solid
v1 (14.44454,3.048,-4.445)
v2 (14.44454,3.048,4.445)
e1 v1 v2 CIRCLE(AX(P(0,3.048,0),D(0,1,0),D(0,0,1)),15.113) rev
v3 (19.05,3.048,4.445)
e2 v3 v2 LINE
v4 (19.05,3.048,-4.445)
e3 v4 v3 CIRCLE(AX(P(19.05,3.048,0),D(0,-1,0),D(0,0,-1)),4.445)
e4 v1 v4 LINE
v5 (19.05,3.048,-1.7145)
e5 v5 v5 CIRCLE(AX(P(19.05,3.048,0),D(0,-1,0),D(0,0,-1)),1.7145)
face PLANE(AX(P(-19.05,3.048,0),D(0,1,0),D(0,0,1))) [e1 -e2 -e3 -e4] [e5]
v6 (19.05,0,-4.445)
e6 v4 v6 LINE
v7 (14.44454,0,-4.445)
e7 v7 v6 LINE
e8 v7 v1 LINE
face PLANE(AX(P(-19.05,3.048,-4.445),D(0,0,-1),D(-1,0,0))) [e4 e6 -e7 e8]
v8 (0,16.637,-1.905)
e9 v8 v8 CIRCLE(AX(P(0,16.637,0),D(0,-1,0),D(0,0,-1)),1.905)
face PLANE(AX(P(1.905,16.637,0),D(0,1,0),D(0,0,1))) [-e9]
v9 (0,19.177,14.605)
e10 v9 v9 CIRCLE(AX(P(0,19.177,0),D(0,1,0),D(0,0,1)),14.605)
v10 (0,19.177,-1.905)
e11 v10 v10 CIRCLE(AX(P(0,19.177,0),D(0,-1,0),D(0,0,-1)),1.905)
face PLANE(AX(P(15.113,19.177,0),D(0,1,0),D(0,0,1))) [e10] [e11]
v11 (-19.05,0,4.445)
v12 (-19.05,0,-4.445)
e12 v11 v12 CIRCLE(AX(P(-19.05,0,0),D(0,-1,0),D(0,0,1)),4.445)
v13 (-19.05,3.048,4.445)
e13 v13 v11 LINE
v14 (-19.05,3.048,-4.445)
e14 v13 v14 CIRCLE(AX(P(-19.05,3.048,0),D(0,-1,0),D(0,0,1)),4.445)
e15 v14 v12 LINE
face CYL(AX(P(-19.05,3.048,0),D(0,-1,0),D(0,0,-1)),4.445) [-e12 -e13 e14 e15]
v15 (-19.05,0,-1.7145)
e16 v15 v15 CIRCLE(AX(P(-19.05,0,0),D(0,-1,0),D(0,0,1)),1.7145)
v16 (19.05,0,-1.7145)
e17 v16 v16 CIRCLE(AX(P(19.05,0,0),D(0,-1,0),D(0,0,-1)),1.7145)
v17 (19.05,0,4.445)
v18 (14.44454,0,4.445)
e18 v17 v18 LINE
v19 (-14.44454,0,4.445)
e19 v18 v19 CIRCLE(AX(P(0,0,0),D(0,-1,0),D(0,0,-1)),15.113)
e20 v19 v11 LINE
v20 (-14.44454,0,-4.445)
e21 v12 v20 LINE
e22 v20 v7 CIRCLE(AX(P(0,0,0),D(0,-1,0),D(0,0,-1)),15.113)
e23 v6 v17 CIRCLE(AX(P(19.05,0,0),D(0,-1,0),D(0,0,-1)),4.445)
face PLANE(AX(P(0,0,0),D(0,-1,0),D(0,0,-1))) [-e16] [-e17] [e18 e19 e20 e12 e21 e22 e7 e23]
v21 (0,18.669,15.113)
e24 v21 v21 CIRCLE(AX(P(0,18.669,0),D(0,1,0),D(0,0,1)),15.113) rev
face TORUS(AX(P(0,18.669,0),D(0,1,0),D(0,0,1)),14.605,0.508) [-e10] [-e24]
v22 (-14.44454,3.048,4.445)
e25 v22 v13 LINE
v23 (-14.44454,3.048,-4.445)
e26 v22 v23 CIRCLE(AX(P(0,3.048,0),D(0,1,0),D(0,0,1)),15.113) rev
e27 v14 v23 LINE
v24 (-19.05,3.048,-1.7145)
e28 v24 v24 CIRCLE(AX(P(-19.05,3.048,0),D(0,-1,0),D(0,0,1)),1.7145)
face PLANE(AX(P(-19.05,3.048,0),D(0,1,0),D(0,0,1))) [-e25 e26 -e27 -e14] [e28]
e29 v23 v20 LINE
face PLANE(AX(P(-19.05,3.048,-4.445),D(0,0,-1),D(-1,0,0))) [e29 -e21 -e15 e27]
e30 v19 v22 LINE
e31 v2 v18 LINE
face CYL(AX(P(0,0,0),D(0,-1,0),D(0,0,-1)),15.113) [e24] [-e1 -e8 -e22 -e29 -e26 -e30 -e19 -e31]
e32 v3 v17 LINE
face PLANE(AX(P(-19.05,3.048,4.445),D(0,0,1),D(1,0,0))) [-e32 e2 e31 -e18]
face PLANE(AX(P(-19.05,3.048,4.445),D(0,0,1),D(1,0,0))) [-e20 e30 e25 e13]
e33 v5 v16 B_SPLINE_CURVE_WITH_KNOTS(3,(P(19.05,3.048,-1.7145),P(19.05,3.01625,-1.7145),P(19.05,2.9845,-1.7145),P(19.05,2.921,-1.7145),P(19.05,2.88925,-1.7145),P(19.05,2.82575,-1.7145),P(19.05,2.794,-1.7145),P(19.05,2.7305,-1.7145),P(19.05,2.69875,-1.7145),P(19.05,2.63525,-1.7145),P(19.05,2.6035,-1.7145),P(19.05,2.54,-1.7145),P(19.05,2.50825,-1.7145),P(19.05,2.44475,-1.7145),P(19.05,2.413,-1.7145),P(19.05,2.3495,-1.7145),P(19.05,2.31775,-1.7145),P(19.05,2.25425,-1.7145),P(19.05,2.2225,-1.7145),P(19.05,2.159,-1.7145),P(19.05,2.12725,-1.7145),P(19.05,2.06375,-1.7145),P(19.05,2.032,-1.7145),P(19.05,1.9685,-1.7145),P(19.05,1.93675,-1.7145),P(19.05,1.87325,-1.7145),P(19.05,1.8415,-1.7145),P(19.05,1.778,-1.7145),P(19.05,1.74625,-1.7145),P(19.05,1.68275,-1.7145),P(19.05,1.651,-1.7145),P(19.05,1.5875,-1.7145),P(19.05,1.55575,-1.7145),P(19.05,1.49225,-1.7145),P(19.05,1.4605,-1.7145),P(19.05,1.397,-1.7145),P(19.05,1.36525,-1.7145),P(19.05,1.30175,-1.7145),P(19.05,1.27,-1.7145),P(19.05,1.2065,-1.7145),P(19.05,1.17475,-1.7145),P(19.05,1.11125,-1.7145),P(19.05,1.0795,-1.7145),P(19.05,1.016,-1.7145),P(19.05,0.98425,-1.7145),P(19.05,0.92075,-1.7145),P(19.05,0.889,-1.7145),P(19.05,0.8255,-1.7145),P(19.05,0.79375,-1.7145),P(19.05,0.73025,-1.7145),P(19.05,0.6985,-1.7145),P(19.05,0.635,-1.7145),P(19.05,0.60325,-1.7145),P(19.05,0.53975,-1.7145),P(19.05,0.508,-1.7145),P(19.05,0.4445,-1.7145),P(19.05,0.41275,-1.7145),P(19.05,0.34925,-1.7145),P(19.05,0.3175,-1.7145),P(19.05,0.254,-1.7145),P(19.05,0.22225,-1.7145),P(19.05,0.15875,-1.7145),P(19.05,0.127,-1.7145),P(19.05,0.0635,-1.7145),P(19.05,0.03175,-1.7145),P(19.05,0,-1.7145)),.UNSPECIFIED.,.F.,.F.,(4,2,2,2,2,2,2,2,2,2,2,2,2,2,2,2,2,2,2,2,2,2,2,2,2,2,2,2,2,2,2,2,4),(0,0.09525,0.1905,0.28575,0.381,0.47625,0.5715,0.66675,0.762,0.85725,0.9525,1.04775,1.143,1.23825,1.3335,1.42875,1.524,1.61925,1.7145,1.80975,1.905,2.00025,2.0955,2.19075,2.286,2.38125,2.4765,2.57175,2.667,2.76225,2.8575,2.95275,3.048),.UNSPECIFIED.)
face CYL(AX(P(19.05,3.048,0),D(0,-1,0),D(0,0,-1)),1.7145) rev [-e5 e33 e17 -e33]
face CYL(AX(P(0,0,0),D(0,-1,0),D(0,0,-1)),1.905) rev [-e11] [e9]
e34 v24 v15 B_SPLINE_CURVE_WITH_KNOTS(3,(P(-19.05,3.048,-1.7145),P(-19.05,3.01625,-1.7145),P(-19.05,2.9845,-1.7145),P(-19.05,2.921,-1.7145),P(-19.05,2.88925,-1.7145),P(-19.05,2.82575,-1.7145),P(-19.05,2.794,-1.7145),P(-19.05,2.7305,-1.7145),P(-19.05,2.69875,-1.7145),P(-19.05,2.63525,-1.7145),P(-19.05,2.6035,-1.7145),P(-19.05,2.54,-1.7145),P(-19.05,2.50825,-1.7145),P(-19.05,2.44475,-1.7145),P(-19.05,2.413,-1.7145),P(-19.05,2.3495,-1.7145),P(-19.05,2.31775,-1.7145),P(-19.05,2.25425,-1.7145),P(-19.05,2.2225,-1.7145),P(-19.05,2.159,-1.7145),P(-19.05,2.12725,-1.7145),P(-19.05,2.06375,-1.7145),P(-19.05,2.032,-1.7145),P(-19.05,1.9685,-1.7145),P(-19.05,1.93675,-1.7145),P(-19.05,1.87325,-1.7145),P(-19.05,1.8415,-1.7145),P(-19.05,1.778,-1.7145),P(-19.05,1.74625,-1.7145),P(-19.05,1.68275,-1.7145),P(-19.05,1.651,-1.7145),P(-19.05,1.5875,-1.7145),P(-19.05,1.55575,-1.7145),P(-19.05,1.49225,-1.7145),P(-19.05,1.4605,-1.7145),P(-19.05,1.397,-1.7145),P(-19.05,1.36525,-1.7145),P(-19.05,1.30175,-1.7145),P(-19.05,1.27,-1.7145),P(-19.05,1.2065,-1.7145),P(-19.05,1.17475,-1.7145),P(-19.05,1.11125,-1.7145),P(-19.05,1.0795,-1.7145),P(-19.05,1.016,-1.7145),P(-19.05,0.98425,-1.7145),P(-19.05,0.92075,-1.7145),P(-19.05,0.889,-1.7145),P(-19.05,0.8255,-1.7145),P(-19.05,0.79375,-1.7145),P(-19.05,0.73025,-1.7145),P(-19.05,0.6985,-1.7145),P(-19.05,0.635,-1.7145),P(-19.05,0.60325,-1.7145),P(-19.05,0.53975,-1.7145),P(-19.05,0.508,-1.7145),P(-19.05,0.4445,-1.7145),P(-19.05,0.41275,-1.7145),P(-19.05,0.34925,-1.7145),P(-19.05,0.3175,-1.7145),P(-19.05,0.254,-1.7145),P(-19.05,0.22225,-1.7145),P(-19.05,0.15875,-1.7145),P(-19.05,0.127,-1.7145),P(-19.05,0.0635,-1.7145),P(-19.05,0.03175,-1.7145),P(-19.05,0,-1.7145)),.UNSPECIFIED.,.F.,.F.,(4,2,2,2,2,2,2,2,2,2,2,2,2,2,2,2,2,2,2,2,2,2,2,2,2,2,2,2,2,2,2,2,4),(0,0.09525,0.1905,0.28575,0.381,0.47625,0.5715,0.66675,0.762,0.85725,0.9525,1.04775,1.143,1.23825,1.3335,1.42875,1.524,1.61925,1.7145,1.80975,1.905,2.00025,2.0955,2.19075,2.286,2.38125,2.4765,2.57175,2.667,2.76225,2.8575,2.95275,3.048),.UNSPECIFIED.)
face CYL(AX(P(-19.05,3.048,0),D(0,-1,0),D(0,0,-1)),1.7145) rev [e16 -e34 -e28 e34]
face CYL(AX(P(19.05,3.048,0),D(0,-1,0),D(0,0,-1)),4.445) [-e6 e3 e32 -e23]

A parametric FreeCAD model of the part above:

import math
import FreeCAD as App
import Part
import Sketcher
from FreeCAD import Vector
Q = App.Units.Quantity


def edges_at(feature, points):
    """Names of the edges that pass closest to the given points."""
    edges = feature.Shape.Edges
    near = lambda p: min(range(len(edges)), key=lambda i: edges[i].distToShape(Part.Vertex(*p))[0])
    return sorted({f"Edge{near(p) + 1}" for p in points})

doc = App.newDocument("Part")
params = doc.addObject("Spreadsheet::Sheet", "Params")
for row, (alias, value) in enumerate([
    ("sketch1_height", "0.1 in"),
    ("sketch1_width", "0.52 in"),
    ("sketch1_width2", "0.595 in"),
    ("sketch1_height2", "0.755 in"),
    ("revolution_angle", "360 deg"),
    ("sketch2_diameter", "0.135 in"),
    ("sketch2_width", "1.5 in"),
    ("sketch2_radius", "0.175 in"),
    ("pad1_length", "0.12 in"),
    ("fillet_radius", "0.02 in"),
], start=1):
    params.set(f"A{row}", alias)
    params.set(f"B{row}", "=" + value)
    params.setAlias(f"B{row}", alias)

body = doc.addObject("PartDesign::Body", "Body")

# Sketch on XY plane
sketch1 = doc.addObject("Sketcher::SketchObject", "Sketch")
body.addObject(sketch1)
sketch1.AttachmentSupport = (doc.XY_Plane, [""])
sketch1.MapMode = "FlatFace"
sketch1.addGeometry(Part.LineSegment(Vector(0, 0, 0), Vector(15.1, 0, 0)), False)
sketch1.addGeometry(Part.LineSegment(Vector(15.1, 0, 0), Vector(15.1, 19.2, 0)), False)
sketch1.addGeometry(Part.LineSegment(Vector(15.1, 19.2, 0), Vector(1.9, 19.2, 0)), False)
sketch1.addGeometry(Part.LineSegment(Vector(1.9, 19.2, 0), Vector(1.9, 16.6, 0)), False)
sketch1.addGeometry(Part.LineSegment(Vector(1.9, 16.6, 0), Vector(0, 16.6, 0)), False)
sketch1.addGeometry(Part.LineSegment(Vector(0, 16.6, 0), Vector(0, 0, 0)), False)
sketch1.addConstraint(Sketcher.Constraint("Coincident", 0, 2, 1, 1))
sketch1.addConstraint(Sketcher.Constraint("Coincident", 1, 2, 2, 1))
sketch1.addConstraint(Sketcher.Constraint("Coincident", 2, 2, 3, 1))
sketch1.addConstraint(Sketcher.Constraint("Coincident", 3, 2, 4, 1))
sketch1.addConstraint(Sketcher.Constraint("Coincident", 4, 2, 5, 1))
sketch1.addConstraint(Sketcher.Constraint("Coincident", 5, 2, 0, 1))
sketch1.addConstraint(Sketcher.Constraint("Horizontal", 0))
sketch1.addConstraint(Sketcher.Constraint("Vertical", 1))
sketch1.addConstraint(Sketcher.Constraint("Horizontal", 2))
sketch1.addConstraint(Sketcher.Constraint("Vertical", 3))
sketch1.addConstraint(Sketcher.Constraint("Horizontal", 4))
sketch1.addConstraint(Sketcher.Constraint("Vertical", 5))
sketch1.addConstraint(Sketcher.Constraint("Coincident", 5, 2, -1, 1))
sketch1.addConstraint(Sketcher.Constraint("DistanceY", 3, 2, 3, 1, Q("0.1 in")))
sketch1.addConstraint(Sketcher.Constraint("DistanceX", 2, 2, 2, 1, Q("0.52 in")))
sketch1.addConstraint(Sketcher.Constraint("DistanceX", 0, 1, 0, 2, Q("0.595 in")))
sketch1.addConstraint(Sketcher.Constraint("DistanceY", 1, 1, 1, 2, Q("0.755 in")))
sketch1.setExpression("Constraints[13]", "Params.sketch1_height")
sketch1.setExpression("Constraints[14]", "Params.sketch1_width")
sketch1.setExpression("Constraints[15]", "Params.sketch1_width2")
sketch1.setExpression("Constraints[16]", "Params.sketch1_height2")
revolution = doc.addObject("PartDesign::Revolution", "Revolution")
body.addObject(revolution)
revolution.Profile = sketch1
revolution.ReferenceAxis = (sketch1, ["V_Axis"])
revolution.setExpression("Angle", "Params.revolution_angle")

# Sketch on XZ plane
sketch2 = doc.addObject("Sketcher::SketchObject", "Sketch001")
body.addObject(sketch2)
sketch2.AttachmentSupport = (doc.XZ_Plane, [""])
sketch2.MapMode = "FlatFace"
sketch2.addGeometry(Part.LineSegment(Vector(19.1, 4.4, 0), Vector(-19.1, 4.4, 0)), False)
sketch2.addGeometry(Part.ArcOfCircle(Part.Circle(Vector(-19.1, 0, 0), Vector(0, 0, 1), 4.4), math.radians(90), math.radians(270)), False)
sketch2.addGeometry(Part.LineSegment(Vector(-19.1, -4.4, 0), Vector(19.1, -4.4, 0)), False)
sketch2.addGeometry(Part.ArcOfCircle(Part.Circle(Vector(19.1, 0, 0), Vector(0, 0, 1), 4.4), math.radians(-90), math.radians(90)), False)
sketch2.addGeometry(Part.Circle(Vector(19.1, 0, 0), Vector(0, 0, 1), 1.7), False)
sketch2.addGeometry(Part.Circle(Vector(-19.1, 0, 0), Vector(0, 0, 1), 1.7), False)
sketch2.addConstraint(Sketcher.Constraint("Tangent", 0, 2, 1, 1))
sketch2.addConstraint(Sketcher.Constraint("Tangent", 1, 2, 2, 1))
sketch2.addConstraint(Sketcher.Constraint("Tangent", 2, 2, 3, 1))
sketch2.addConstraint(Sketcher.Constraint("Tangent", 3, 2, 0, 1))
sketch2.addConstraint(Sketcher.Constraint("Horizontal", 0))
sketch2.addConstraint(Sketcher.Constraint("Horizontal", 2))
sketch2.addConstraint(Sketcher.Constraint("Coincident", 4, 3, 3, 3))
sketch2.addConstraint(Sketcher.Constraint("Coincident", 5, 3, 1, 3))
sketch2.addConstraint(Sketcher.Constraint("Equal", 4, 5))
sketch2.addConstraint(Sketcher.Constraint("Symmetric", 1, 3, 3, 3, -1, 1))
sketch2.addConstraint(Sketcher.Constraint("Diameter", 4, Q("0.135 in")))
sketch2.addConstraint(Sketcher.Constraint("DistanceX", 0, 2, 0, 1, Q("1.5 in")))
sketch2.addConstraint(Sketcher.Constraint("Radius", 1, Q("0.175 in")))
sketch2.setExpression("Constraints[10]", "Params.sketch2_diameter")
sketch2.setExpression("Constraints[11]", "Params.sketch2_width")
sketch2.setExpression("Constraints[12]", "Params.sketch2_radius")
pad1 = doc.addObject("PartDesign::Pad", "Pad")
body.addObject(pad1)
pad1.Profile = sketch2
pad1.setExpression("Length", "Params.pad1_length")
pad1.Reversed = True
doc.recompute()

fillet = doc.addObject("PartDesign::Fillet", "Fillet")
body.addObject(fillet)
fillet.Base = (pad1, edges_at(pad1, [(0, 19.177, 15.113)]))
fillet.setExpression("Radius", "Params.fillet_radius")

doc.recompute()
